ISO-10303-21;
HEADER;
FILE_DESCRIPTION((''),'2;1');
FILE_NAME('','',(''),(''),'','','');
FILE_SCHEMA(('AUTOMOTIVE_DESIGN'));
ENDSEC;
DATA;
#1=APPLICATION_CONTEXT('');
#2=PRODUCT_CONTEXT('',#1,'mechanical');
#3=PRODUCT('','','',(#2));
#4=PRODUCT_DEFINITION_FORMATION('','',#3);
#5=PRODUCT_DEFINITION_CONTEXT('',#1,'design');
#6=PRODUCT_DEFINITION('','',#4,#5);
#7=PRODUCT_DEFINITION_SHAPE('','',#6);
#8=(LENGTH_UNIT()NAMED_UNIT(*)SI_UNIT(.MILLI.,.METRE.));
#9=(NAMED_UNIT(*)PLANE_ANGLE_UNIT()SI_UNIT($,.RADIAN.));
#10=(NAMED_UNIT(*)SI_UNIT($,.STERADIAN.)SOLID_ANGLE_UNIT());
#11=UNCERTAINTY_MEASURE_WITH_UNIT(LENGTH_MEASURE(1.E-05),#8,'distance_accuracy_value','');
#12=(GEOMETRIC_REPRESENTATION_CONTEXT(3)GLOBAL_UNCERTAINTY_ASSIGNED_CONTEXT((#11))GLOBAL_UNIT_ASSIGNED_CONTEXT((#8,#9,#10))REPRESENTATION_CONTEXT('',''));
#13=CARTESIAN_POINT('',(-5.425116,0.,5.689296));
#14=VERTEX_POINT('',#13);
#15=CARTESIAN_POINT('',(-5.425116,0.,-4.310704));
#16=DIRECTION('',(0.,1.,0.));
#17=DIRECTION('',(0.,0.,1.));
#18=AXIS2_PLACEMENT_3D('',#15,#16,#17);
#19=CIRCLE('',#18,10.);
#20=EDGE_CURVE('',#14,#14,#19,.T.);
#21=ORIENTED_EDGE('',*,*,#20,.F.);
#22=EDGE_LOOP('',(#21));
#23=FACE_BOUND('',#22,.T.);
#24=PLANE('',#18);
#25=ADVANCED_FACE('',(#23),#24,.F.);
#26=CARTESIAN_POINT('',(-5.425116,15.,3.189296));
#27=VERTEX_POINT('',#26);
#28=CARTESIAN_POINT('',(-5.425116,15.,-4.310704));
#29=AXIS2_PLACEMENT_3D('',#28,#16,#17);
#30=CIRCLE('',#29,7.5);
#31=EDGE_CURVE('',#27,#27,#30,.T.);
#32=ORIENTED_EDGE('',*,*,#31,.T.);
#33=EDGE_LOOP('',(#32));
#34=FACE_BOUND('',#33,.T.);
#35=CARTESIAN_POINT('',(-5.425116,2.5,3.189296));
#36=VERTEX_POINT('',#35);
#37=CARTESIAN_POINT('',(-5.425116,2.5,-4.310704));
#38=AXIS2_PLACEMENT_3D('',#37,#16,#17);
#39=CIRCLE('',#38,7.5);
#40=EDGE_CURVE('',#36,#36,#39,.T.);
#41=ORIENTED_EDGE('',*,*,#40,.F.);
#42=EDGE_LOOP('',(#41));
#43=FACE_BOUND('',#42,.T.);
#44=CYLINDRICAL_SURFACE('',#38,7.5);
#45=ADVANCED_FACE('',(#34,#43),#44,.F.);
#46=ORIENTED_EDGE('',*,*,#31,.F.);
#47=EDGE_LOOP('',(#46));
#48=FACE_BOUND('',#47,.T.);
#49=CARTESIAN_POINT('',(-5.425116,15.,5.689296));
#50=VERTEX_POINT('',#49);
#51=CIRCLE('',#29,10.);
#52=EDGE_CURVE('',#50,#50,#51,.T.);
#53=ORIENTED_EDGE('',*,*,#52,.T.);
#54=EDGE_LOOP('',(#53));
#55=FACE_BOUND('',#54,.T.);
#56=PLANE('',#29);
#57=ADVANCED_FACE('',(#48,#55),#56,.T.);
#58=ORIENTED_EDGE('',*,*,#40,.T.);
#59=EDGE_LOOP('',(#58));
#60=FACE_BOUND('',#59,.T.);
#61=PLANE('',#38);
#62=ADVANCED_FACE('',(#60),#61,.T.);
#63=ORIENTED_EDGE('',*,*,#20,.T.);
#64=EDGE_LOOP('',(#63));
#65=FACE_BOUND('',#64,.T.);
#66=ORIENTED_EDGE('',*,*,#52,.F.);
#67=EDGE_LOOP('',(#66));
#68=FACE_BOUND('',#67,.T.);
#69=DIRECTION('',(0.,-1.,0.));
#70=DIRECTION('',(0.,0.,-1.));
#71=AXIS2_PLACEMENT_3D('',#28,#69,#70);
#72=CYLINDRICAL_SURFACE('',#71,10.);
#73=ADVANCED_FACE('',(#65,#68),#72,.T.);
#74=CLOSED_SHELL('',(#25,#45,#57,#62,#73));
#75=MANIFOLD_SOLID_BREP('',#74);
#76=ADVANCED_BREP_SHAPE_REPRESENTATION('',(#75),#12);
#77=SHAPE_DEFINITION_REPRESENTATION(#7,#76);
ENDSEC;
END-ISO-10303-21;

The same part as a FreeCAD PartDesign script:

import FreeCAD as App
import Part
import Sketcher
from FreeCAD import Vector
Q = App.Units.Quantity

doc = App.newDocument("Part")
body = doc.addObject("PartDesign::Body", "Body")

# Sketch on XZ plane
sketch1 = body.newObject("Sketcher::SketchObject", "Sketch")
sketch1.AttachmentSupport = (doc.getObject("XZ_Plane"), [""])
sketch1.MapMode = "FlatFace"
sketch1.addGeometry(Part.Circle(Vector(-5, -4, 0), Vector(0, 0, 1), 10), False)
sketch1.addConstraint(Sketcher.Constraint("Diameter", 0, Q("20 mm")))
sketch1.addConstraint(Sketcher.Constraint("DistanceX", 0, 3, -1, 1, Q("5.425116 mm")))
sketch1.addConstraint(Sketcher.Constraint("DistanceY", 0, 3, -1, 1, Q("4.310704 mm")))
pad1 = body.newObject("PartDesign::Pad", "Pad")
pad1.Profile = sketch1
pad1.Length = 15
pad1.Reversed = True

# Sketch on XZ plane
sketch2 = body.newObject("Sketcher::SketchObject", "Sketch001")
sketch2.AttachmentSupport = (doc.getObject("XZ_Plane"), [""])
sketch2.MapMode = "FlatFace"
sketch2.AttachmentOffset = App.Placement(Vector(0, 0, -15), App.Rotation())
sketch2.addGeometry(Part.Circle(Vector(-5, -4, 0), Vector(0, 0, 1), 8), False)
sketch2.addConstraint(Sketcher.Constraint("Diameter", 0, Q("15 mm")))
sketch2.addConstraint(Sketcher.Constraint("DistanceX", 0, 3, -1, 1, Q("5.425116 mm")))
sketch2.addConstraint(Sketcher.Constraint("DistanceY", 0, 3, -1, 1, Q("4.310704 mm")))
pocket1 = body.newObject("PartDesign::Pocket", "Pocket")
pocket1.Profile = sketch2
pocket1.Length = 12.5
pocket1.Reversed = True

doc.recompute()
